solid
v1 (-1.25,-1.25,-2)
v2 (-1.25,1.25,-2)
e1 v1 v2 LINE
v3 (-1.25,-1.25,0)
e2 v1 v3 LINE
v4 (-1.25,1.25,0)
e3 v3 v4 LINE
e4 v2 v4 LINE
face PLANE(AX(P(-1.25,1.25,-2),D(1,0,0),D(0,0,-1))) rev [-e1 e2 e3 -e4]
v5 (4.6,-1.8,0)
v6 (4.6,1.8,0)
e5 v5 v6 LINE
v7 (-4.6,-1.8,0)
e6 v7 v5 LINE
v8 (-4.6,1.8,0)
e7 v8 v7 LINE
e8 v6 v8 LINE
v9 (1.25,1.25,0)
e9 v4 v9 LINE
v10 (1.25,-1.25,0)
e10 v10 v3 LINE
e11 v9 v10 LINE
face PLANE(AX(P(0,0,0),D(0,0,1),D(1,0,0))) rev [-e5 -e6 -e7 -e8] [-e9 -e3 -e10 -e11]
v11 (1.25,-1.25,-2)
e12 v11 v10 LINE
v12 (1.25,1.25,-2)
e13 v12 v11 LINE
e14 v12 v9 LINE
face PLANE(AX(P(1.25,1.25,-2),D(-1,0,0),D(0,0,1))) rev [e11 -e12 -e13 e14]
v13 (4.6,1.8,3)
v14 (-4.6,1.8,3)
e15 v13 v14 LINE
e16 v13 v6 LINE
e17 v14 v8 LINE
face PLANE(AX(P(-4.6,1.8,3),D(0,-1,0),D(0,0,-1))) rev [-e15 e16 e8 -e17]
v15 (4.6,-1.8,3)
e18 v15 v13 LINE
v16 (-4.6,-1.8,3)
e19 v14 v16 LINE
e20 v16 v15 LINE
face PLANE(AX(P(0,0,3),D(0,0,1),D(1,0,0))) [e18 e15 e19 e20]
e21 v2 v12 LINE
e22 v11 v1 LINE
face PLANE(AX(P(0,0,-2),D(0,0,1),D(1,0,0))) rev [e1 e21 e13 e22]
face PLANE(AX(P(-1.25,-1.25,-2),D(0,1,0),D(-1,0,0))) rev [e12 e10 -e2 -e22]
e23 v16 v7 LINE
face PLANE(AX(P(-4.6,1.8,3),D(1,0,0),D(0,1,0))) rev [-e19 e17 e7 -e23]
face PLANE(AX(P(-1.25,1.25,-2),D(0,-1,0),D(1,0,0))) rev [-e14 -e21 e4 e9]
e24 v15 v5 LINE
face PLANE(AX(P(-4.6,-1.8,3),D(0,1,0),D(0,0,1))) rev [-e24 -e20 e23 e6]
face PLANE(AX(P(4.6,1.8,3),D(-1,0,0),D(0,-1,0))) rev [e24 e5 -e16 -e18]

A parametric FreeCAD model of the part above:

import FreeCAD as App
import Part
import Sketcher
from FreeCAD import Vector

doc = App.newDocument("Part")
body = doc.addObject("PartDesign::Body", "Body")

# Sketch on XY plane
sketch1 = doc.addObject("Sketcher::SketchObject", "Sketch")
body.addObject(sketch1)
sketch1.AttachmentSupport = (doc.XY_Plane, [""])
sketch1.MapMode = "FlatFace"
sketch1.addGeometry(Part.LineSegment(Vector(-4.6, 1.8, 0), Vector(-4.6, -1.8, 0)), False)
sketch1.addGeometry(Part.LineSegment(Vector(-4.6, -1.8, 0), Vector(4.6, -1.8, 0)), False)
sketch1.addGeometry(Part.LineSegment(Vector(4.6, -1.8, 0), Vector(4.6, 1.8, 0)), False)
sketch1.addGeometry(Part.LineSegment(Vector(4.6, 1.8, 0), Vector(-4.6, 1.8, 0)), False)
sketch1.addConstraint(Sketcher.Constraint("Coincident", 0, 2, 1, 1))
sketch1.addConstraint(Sketcher.Constraint("Coincident", 1, 2, 2, 1))
sketch1.addConstraint(Sketcher.Constraint("Coincident", 2, 2, 3, 1))
sketch1.addConstraint(Sketcher.Constraint("Coincident", 3, 2, 0, 1))
sketch1.addConstraint(Sketcher.Constraint("Vertical", 0))
sketch1.addConstraint(Sketcher.Constraint("Horizontal", 1))
sketch1.addConstraint(Sketcher.Constraint("Vertical", 2))
sketch1.addConstraint(Sketcher.Constraint("Horizontal", 3))
sketch1.addConstraint(Sketcher.Constraint("Symmetric", 0, 2, 2, 2, -1, 1))
sketch1.addConstraint(Sketcher.Constraint("DistanceX", 1, 1, 1, 2, 9.2))
sketch1.addConstraint(Sketcher.Constraint("DistanceY", 0, 2, 0, 1, 3.6))
pad1 = doc.addObject("PartDesign::Pad", "Pad")
body.addObject(pad1)
pad1.Profile = sketch1
pad1.Length = 3

# Sketch on XY plane
sketch2 = doc.addObject("Sketcher::SketchObject", "Sketch001")
body.addObject(sketch2)
sketch2.AttachmentSupport = (doc.XY_Plane, [""])
sketch2.MapMode = "FlatFace"
sketch2.addGeometry(Part.LineSegment(Vector(1.2, 1.2, 0), Vector(1.2, -1.2, 0)), False)
sketch2.addGeometry(Part.LineSegment(Vector(1.2, -1.2, 0), Vector(-1.2, -1.2, 0)), False)
sketch2.addGeometry(Part.LineSegment(Vector(-1.2, -1.2, 0), Vector(-1.2, 1.2, 0)), False)
sketch2.addGeometry(Part.LineSegment(Vector(-1.2, 1.2, 0), Vector(1.2, 1.2, 0)), False)
sketch2.addConstraint(Sketcher.Constraint("Coincident", 0, 2, 1, 1))
sketch2.addConstraint(Sketcher.Constraint("Coincident", 1, 2, 2, 1))
sketch2.addConstraint(Sketcher.Constraint("Coincident", 2, 2, 3, 1))
sketch2.addConstraint(Sketcher.Constraint("Coincident", 3, 2, 0, 1))
sketch2.addConstraint(Sketcher.Constraint("Vertical", 0))
sketch2.addConstraint(Sketcher.Constraint("Horizontal", 1))
sketch2.addConstraint(Sketcher.Constraint("Vertical", 2))
sketch2.addConstraint(Sketcher.Constraint("Horizontal", 3))
sketch2.addConstraint(Sketcher.Constraint("Symmetric", 0, 2, 2, 2, -1, 1))
sketch2.addConstraint(Sketcher.Constraint("Equal", 3, 0))
sketch2.addConstraint(Sketcher.Constraint("DistanceX", 1, 2, 1, 1, 2.5))
pad2 = doc.addObject("PartDesign::Pad", "Pad001")
body.addObject(pad2)
pad2.Profile = sketch2
pad2.Length = 2
pad2.Reversed = True

doc.recompute()
